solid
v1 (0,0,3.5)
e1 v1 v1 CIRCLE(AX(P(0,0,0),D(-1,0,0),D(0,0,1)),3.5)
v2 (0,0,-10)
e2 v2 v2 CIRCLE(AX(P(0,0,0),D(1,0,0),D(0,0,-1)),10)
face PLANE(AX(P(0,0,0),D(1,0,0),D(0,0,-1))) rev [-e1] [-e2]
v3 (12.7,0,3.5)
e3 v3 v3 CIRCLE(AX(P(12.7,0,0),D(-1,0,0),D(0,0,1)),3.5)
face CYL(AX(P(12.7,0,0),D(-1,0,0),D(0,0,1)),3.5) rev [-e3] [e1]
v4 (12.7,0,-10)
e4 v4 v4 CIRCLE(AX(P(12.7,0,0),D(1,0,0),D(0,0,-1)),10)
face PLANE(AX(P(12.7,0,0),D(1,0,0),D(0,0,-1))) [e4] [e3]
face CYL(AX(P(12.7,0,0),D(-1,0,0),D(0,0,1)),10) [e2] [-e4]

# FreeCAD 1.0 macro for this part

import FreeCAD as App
import Part
import Sketcher
Q = App.Units.Quantity

doc = App.newDocument("Part")
body = doc.addObject("PartDesign::Body", "Body")

sketch1 = body.newObject("Sketcher::SketchObject", "Sketch")
sketch1.AttachmentSupport = (doc.getObject("YZ_Plane"), [""])
sketch1.MapMode = "FlatFace"
sketch1.addGeometry(Part.Circle(App.Vector(0, 0, 0), App.Vector(0, 0, 1), 10), False)
sketch1.addConstraint([
    Sketcher.Constraint("Coincident", 0, 3, -1, 1),
    Sketcher.Constraint("Diameter", 0, Q("20 mm")),
])
pad1 = body.newObject("PartDesign::Pad", "Pad")
pad1.Profile = sketch1
pad1.Length = 12.7

sketch2 = body.newObject("Sketcher::SketchObject", "Sketch001")
sketch2.AttachmentSupport = (doc.getObject("YZ_Plane"), [""])
sketch2.MapMode = "FlatFace"
sketch2.addGeometry(Part.Circle(App.Vector(0, 0, 0), App.Vector(0, 0, 1), 3.5), False)
sketch2.addConstraint([
    Sketcher.Constraint("Coincident", 0, 3, -1, 1),
    Sketcher.Constraint("Diameter", 0, Q("7 mm")),
])
pocket1 = body.newObject("PartDesign::Pocket", "Pocket")
pocket1.Profile = sketch2
pocket1.Length = 12.7
pocket1.Reversed = True

doc.recompute()
